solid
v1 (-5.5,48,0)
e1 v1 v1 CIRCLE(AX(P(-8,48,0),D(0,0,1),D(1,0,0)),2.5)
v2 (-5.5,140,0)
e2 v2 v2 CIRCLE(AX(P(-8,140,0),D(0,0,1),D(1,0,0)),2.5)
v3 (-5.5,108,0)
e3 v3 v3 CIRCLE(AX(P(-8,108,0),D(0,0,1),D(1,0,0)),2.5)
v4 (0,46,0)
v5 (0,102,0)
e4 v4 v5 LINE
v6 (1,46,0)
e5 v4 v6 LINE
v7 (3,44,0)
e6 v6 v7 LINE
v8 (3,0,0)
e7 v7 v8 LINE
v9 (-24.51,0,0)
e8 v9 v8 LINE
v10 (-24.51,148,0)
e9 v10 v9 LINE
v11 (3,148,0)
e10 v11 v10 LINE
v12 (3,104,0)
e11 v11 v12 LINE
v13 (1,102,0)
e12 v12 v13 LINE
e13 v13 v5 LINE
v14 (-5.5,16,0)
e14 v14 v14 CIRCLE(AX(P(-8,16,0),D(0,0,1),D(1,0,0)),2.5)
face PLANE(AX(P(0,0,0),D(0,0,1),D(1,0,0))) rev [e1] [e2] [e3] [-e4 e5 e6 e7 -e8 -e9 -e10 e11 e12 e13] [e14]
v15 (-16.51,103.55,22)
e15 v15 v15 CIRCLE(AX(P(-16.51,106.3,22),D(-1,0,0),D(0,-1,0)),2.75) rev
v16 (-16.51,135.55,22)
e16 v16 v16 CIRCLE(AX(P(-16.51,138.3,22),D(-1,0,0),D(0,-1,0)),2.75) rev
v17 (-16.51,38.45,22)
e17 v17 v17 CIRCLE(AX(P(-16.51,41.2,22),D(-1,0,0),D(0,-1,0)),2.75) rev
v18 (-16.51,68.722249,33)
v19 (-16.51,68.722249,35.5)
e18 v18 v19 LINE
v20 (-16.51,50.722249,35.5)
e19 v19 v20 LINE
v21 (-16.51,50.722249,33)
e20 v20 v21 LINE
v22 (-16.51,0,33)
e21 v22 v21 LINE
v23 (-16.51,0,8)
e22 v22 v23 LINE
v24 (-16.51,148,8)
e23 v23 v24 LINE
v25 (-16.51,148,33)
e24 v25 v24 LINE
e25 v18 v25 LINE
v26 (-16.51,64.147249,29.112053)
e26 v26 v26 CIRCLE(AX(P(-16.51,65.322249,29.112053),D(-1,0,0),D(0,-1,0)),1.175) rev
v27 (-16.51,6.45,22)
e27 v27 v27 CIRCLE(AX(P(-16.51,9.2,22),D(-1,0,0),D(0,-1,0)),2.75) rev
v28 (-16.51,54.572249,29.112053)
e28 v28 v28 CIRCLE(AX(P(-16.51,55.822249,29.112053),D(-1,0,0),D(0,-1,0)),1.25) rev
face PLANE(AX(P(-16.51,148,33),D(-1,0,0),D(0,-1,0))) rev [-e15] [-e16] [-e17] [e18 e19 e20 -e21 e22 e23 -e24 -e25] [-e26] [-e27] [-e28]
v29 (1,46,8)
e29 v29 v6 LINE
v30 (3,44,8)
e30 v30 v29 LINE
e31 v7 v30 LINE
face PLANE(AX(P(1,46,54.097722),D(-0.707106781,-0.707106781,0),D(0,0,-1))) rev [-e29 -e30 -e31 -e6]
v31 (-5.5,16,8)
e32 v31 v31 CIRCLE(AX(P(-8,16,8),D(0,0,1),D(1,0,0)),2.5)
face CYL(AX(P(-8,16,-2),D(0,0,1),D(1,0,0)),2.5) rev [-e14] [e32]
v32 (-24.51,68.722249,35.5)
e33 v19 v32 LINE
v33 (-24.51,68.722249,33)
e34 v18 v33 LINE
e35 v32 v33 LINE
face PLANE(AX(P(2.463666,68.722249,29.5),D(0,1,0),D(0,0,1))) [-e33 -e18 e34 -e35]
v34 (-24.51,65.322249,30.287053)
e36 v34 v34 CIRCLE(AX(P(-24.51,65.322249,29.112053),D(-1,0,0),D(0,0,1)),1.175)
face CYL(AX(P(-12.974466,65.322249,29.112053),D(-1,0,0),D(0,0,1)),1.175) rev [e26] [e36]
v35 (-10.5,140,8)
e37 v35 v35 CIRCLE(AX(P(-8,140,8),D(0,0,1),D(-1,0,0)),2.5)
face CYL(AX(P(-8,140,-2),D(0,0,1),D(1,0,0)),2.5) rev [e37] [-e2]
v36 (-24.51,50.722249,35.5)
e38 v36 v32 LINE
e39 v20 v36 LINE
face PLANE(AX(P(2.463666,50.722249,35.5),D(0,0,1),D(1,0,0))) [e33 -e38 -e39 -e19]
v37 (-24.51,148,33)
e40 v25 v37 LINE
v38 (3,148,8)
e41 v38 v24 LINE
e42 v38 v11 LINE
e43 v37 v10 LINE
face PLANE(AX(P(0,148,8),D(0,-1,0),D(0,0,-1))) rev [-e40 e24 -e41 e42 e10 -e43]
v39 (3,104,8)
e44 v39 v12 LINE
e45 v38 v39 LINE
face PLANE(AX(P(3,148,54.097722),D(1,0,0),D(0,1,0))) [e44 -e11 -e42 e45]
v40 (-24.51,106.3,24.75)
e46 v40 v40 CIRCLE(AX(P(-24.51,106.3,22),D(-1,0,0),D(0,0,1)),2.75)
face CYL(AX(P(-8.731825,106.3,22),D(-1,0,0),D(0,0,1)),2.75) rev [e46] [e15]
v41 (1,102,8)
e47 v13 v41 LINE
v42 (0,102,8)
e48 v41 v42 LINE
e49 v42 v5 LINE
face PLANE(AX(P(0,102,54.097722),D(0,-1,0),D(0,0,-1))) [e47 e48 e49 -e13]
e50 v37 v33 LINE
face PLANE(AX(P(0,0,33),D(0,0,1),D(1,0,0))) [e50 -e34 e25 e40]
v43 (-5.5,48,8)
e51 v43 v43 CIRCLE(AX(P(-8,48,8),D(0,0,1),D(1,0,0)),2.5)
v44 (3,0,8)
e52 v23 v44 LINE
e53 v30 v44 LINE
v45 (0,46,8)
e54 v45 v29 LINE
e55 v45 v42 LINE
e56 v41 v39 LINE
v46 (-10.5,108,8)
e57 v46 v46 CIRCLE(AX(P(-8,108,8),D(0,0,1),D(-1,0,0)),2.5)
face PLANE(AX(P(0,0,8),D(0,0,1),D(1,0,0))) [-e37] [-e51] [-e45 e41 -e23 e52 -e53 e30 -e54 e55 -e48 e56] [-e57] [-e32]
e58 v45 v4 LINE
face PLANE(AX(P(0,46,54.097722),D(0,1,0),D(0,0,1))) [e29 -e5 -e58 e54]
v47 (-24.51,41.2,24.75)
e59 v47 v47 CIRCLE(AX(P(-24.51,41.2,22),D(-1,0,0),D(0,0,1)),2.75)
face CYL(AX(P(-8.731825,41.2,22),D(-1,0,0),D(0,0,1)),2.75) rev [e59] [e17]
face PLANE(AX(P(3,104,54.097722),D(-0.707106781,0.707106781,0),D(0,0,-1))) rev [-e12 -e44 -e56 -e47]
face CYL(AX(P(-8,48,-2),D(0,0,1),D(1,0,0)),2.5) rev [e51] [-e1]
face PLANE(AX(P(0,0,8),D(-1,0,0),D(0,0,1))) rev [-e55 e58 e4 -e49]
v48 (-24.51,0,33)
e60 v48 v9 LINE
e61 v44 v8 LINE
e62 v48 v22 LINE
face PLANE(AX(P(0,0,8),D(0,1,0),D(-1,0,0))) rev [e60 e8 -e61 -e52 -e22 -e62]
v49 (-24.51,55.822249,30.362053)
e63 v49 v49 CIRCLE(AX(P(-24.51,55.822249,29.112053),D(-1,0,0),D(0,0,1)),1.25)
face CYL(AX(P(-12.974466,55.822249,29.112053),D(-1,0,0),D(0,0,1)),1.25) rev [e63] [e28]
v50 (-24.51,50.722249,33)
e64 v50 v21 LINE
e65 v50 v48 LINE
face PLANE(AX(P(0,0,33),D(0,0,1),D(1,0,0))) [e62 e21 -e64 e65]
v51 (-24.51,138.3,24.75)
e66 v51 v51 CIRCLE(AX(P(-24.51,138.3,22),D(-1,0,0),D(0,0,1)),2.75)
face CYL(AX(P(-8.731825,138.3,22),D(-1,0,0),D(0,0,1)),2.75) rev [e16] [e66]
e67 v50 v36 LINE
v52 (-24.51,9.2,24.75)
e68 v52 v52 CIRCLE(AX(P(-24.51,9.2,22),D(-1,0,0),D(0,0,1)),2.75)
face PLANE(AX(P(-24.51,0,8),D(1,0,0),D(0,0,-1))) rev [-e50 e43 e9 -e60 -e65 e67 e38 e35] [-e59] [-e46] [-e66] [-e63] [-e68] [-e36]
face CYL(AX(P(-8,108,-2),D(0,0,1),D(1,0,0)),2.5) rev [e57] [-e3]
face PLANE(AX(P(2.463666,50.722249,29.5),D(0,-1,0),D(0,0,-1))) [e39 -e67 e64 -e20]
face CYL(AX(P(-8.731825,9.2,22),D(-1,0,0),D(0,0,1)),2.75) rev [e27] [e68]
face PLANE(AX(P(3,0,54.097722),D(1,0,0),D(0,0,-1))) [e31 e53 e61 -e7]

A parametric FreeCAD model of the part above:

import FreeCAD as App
import Part
import Sketcher
from FreeCAD import Vector
Q = App.Units.Quantity


def edges_at(feature, points):
    """Names of the edges that pass closest to the given points."""
    edges = feature.Shape.Edges
    near = lambda p: min(range(len(edges)), key=lambda i: edges[i].distToShape(Part.Vertex(*p))[0])
    return sorted({f"Edge{near(p) + 1}" for p in points})


def add_polygon(sketch, points):
    """Adds a closed chain of lines whose ends are joined by coincident constraints."""
    first, n = sketch.GeometryCount, len(points)
    for a, b in zip(points, points[1:] + points[:1]):
        sketch.addGeometry(Part.LineSegment(App.Vector(*a, 0), App.Vector(*b, 0)), False)
    for i in range(n):
        sketch.addConstraint(Sketcher.Constraint("Coincident", first + i, 2, first + (i + 1) % n, 1))

doc = App.newDocument("Part")
body = doc.addObject("PartDesign::Body", "Body")

# Sketch on XY plane
sketch1 = body.newObject("Sketcher::SketchObject", "Sketch")
sketch1.AttachmentSupport = (doc.getObject("XY_Plane"), [""])
sketch1.MapMode = "FlatFace"
add_polygon(sketch1, [(-24.51, 148), (-24.51, 0), (0, 0), (0, 148)])  # lines 0-3
sketch1.addConstraint([
    Sketcher.Constraint("Vertical", 0),
    Sketcher.Constraint("Horizontal", 1),
    Sketcher.Constraint("Vertical", 2),
    Sketcher.Constraint("Horizontal", 3),
    Sketcher.Constraint("Coincident", 1, 2, -1, 1),
    Sketcher.Constraint("DistanceY", 0, 2, 0, 1, Q("148 mm")),
    Sketcher.Constraint("DistanceX", 1, 1, 1, 2, Q("24.51 mm")),
])
pad1 = body.newObject("PartDesign::Pad", "Pad")
pad1.Profile = sketch1
pad1.Length = 8

# Sketch on XY plane
sketch2 = body.newObject("Sketcher::SketchObject", "Sketch001")
sketch2.AttachmentSupport = (doc.getObject("XY_Plane"), [""])
sketch2.MapMode = "FlatFace"
sketch2.AttachmentOffset = App.Placement(Vector(0, 0, 8), App.Rotation())
add_polygon(sketch2, [(-24.51, 148), (-24.51, 0), (-16.51, 0), (-16.51, 148)])  # lines 0-3
sketch2.addConstraint([
    Sketcher.Constraint("Vertical", 0),
    Sketcher.Constraint("Horizontal", 1),
    Sketcher.Constraint("Vertical", 2),
    Sketcher.Constraint("Horizontal", 3),
    Sketcher.Constraint("PointOnObject", 0, 2, -1),
    Sketcher.Constraint("DistanceX", 1, 1, 1, 2, Q("8 mm")),
    Sketcher.Constraint("DistanceY", 0, 2, 0, 1, Q("148 mm")),
    Sketcher.Constraint("DistanceX", 0, 2, -1, 1, Q("24.51 mm")),
])
pad2 = body.newObject("PartDesign::Pad", "Pad001")
pad2.Profile = sketch2
pad2.Length = 25

# Sketch on XY plane
sketch3 = body.newObject("Sketcher::SketchObject", "Sketch002")
sketch3.AttachmentSupport = (doc.getObject("XY_Plane"), [""])
sketch3.MapMode = "FlatFace"
sketch3.AttachmentOffset = App.Placement(Vector(0, 0, 8), App.Rotation())
sketch3.addGeometry([
    Part.Circle(Vector(-8, 16, 0), Vector(0, 0, 1), 2.5),
    Part.Circle(Vector(-8, 48, 0), Vector(0, 0, 1), 2.5),
    Part.Circle(Vector(-8, 108, 0), Vector(0, 0, 1), 2.5),
    Part.Circle(Vector(-8, 140, 0), Vector(0, 0, 1), 2.5),
], False)
sketch3.addConstraint([
    Sketcher.Constraint("Equal", 0, 1),
    Sketcher.Constraint("Equal", 1, 2),
    Sketcher.Constraint("Equal", 2, 3),
    Sketcher.Constraint("Vertical", 0, 3, 1, 3),
    Sketcher.Constraint("Vertical", 1, 3, 2, 3),
    Sketcher.Constraint("Vertical", 2, 3, 3, 3),
    Sketcher.Constraint("Diameter", 0, Q("5 mm")),
    Sketcher.Constraint("DistanceX", 0, 3, -1, 1, Q("8 mm")),
    Sketcher.Constraint("DistanceY", -1, 1, 0, 3, Q("16 mm")),
    Sketcher.Constraint("DistanceY", -1, 1, 1, 3, Q("48 mm")),
    Sketcher.Constraint("DistanceY", -1, 1, 2, 3, Q("108 mm")),
    Sketcher.Constraint("DistanceY", -1, 1, 3, 3, Q("140 mm")),
])
pocket1 = body.newObject("PartDesign::Pocket", "Pocket")
pocket1.Profile = sketch3
pocket1.Length = 10

# Sketch on YZ plane
sketch4 = body.newObject("Sketcher::SketchObject", "Sketch003")
sketch4.AttachmentSupport = (doc.getObject("YZ_Plane"), [""])
sketch4.MapMode = "FlatFace"
sketch4.AttachmentOffset = App.Placement(Vector(0, 0, -24.51), App.Rotation())
sketch4.addGeometry([
    Part.Circle(Vector(138.3, 22, 0), Vector(0, 0, 1), 2.75),
    Part.Circle(Vector(106.3, 22, 0), Vector(0, 0, 1), 2.75),
    Part.Circle(Vector(41.2, 22, 0), Vector(0, 0, 1), 2.75),
    Part.Circle(Vector(9.2, 22, 0), Vector(0, 0, 1), 2.75),
], False)
sketch4.addConstraint([
    Sketcher.Constraint("Equal", 0, 1),
    Sketcher.Constraint("Equal", 1, 2),
    Sketcher.Constraint("Equal", 2, 3),
    Sketcher.Constraint("Horizontal", 0, 3, 1, 3),
    Sketcher.Constraint("Horizontal", 1, 3, 2, 3),
    Sketcher.Constraint("Horizontal", 2, 3, 3, 3),
    Sketcher.Constraint("Diameter", 0, Q("5.5 mm")),
    Sketcher.Constraint("DistanceY", -1, 1, 0, 3, Q("22 mm")),
    Sketcher.Constraint("DistanceX", 1, 3, 0, 3, Q("32 mm")),
    Sketcher.Constraint("DistanceX", 3, 3, 2, 3, Q("32 mm")),
    Sketcher.Constraint("DistanceX", -1, 1, 0, 3, Q("138.3 mm")),
    Sketcher.Constraint("DistanceX", -1, 1, 2, 3, Q("41.2 mm")),
])
pocket2 = body.newObject("PartDesign::Pocket", "Pocket001")
pocket2.Profile = sketch4
pocket2.Length = 8
pocket2.Reversed = True

# Sketch on XY plane
sketch5 = body.newObject("Sketcher::SketchObject", "Sketch004")
sketch5.AttachmentSupport = (doc.getObject("XY_Plane"), [""])
sketch5.MapMode = "FlatFace"
add_polygon(sketch5, [(3, 148), (3, 102), (0, 102), (0, 148)])  # lines 0-3
sketch5.addConstraint([
    Sketcher.Constraint("Vertical", 0),
    Sketcher.Constraint("Horizontal", 1),
    Sketcher.Constraint("Vertical", 2),
    Sketcher.Constraint("Horizontal", 3),
    Sketcher.Constraint("PointOnObject", 1, 2, -2),
    Sketcher.Constraint("DistanceX", 1, 2, 1, 1, Q("3 mm")),
    Sketcher.Constraint("DistanceY", 0, 2, 0, 1, Q("46 mm")),
    Sketcher.Constraint("DistanceY", -1, 1, 0, 2, Q("102 mm")),
])
pad3 = body.newObject("PartDesign::Pad", "Pad002")
pad3.Profile = sketch5
pad3.Length = 8

# Sketch on XY plane
sketch6 = body.newObject("Sketcher::SketchObject", "Sketch005")
sketch6.AttachmentSupport = (doc.getObject("XY_Plane"), [""])
sketch6.MapMode = "FlatFace"
add_polygon(sketch6, [(3, 46), (3, 0), (0, 0), (0, 46)])  # lines 0-3
sketch6.addConstraint([
    Sketcher.Constraint("Vertical", 0),
    Sketcher.Constraint("Horizontal", 1),
    Sketcher.Constraint("Vertical", 2),
    Sketcher.Constraint("Horizontal", 3),
    Sketcher.Constraint("Coincident", 1, 2, -1, 1),
    Sketcher.Constraint("DistanceX", 1, 2, 1, 1, Q("3 mm")),
    Sketcher.Constraint("DistanceY", 0, 2, 0, 1, Q("46 mm")),
])
pad4 = body.newObject("PartDesign::Pad", "Pad003")
pad4.Profile = sketch6
pad4.Length = 8
doc.recompute()

chamfer = body.newObject("PartDesign::Chamfer", "Chamfer")
chamfer.Base = (pad4, edges_at(pad4, [(3, 46, 4), (3, 102, 4)]))
chamfer.Size = 2

# Sketch on YZ plane
sketch7 = body.newObject("Sketcher::SketchObject", "Sketch006")
sketch7.AttachmentSupport = (doc.getObject("YZ_Plane"), [""])
sketch7.MapMode = "FlatFace"
sketch7.AttachmentOffset = App.Placement(Vector(0, 0, -24.51), App.Rotation())
add_polygon(sketch7, [(68.722249, 29.5), (50.722249, 29.5), (50.722249, 35.5), (68.722249, 35.5)])  # lines 0-3
sketch7.addConstraint([
    Sketcher.Constraint("Horizontal", 0),
    Sketcher.Constraint("Vertical", 1),
    Sketcher.Constraint("Horizontal", 2),
    Sketcher.Constraint("Vertical", 3),
    Sketcher.Constraint("DistanceX", 0, 2, 0, 1, Q("18 mm")),
    Sketcher.Constraint("DistanceY", 1, 1, 1, 2, Q("6 mm")),
    Sketcher.Constraint("DistanceY", -1, 1, 0, 2, Q("29.5 mm")),
    Sketcher.Constraint("DistanceX", -1, 1, 0, 2, Q("50.722249 mm")),
])
pad5 = body.newObject("PartDesign::Pad", "Pad004")
pad5.Profile = sketch7
pad5.Length = 8

# Sketch on YZ plane
sketch8 = body.newObject("Sketcher::SketchObject", "Sketch007")
sketch8.AttachmentSupport = (doc.getObject("YZ_Plane"), [""])
sketch8.MapMode = "FlatFace"
sketch8.AttachmentOffset = App.Placement(Vector(0, 0, -24.51), App.Rotation())
sketch8.addGeometry([
    Part.Circle(Vector(65.322249, 29.112053, 0), Vector(0, 0, 1), 1.175),
    Part.Circle(Vector(55.822249, 29.112053, 0), Vector(0, 0, 1), 1.25),
], False)
sketch8.addConstraint([
    Sketcher.Constraint("Horizontal", 0, 3, 1, 3),
    Sketcher.Constraint("Diameter", 1, Q("2.5 mm")),
    Sketcher.Constraint("Diameter", 0, Q("2.35 mm")),
    Sketcher.Constraint("DistanceX", 1, 3, 0, 3, Q("9.5 mm")),
    Sketcher.Constraint("DistanceX", -1, 1, 0, 3, Q("65.322249 mm")),
    Sketcher.Constraint("DistanceY", -1, 1, 0, 3, Q("29.112053 mm")),
])
pocket3 = body.newObject("PartDesign::Pocket", "Pocket002")
pocket3.Profile = sketch8
pocket3.Length = 8
pocket3.Reversed = True

doc.recompute()
